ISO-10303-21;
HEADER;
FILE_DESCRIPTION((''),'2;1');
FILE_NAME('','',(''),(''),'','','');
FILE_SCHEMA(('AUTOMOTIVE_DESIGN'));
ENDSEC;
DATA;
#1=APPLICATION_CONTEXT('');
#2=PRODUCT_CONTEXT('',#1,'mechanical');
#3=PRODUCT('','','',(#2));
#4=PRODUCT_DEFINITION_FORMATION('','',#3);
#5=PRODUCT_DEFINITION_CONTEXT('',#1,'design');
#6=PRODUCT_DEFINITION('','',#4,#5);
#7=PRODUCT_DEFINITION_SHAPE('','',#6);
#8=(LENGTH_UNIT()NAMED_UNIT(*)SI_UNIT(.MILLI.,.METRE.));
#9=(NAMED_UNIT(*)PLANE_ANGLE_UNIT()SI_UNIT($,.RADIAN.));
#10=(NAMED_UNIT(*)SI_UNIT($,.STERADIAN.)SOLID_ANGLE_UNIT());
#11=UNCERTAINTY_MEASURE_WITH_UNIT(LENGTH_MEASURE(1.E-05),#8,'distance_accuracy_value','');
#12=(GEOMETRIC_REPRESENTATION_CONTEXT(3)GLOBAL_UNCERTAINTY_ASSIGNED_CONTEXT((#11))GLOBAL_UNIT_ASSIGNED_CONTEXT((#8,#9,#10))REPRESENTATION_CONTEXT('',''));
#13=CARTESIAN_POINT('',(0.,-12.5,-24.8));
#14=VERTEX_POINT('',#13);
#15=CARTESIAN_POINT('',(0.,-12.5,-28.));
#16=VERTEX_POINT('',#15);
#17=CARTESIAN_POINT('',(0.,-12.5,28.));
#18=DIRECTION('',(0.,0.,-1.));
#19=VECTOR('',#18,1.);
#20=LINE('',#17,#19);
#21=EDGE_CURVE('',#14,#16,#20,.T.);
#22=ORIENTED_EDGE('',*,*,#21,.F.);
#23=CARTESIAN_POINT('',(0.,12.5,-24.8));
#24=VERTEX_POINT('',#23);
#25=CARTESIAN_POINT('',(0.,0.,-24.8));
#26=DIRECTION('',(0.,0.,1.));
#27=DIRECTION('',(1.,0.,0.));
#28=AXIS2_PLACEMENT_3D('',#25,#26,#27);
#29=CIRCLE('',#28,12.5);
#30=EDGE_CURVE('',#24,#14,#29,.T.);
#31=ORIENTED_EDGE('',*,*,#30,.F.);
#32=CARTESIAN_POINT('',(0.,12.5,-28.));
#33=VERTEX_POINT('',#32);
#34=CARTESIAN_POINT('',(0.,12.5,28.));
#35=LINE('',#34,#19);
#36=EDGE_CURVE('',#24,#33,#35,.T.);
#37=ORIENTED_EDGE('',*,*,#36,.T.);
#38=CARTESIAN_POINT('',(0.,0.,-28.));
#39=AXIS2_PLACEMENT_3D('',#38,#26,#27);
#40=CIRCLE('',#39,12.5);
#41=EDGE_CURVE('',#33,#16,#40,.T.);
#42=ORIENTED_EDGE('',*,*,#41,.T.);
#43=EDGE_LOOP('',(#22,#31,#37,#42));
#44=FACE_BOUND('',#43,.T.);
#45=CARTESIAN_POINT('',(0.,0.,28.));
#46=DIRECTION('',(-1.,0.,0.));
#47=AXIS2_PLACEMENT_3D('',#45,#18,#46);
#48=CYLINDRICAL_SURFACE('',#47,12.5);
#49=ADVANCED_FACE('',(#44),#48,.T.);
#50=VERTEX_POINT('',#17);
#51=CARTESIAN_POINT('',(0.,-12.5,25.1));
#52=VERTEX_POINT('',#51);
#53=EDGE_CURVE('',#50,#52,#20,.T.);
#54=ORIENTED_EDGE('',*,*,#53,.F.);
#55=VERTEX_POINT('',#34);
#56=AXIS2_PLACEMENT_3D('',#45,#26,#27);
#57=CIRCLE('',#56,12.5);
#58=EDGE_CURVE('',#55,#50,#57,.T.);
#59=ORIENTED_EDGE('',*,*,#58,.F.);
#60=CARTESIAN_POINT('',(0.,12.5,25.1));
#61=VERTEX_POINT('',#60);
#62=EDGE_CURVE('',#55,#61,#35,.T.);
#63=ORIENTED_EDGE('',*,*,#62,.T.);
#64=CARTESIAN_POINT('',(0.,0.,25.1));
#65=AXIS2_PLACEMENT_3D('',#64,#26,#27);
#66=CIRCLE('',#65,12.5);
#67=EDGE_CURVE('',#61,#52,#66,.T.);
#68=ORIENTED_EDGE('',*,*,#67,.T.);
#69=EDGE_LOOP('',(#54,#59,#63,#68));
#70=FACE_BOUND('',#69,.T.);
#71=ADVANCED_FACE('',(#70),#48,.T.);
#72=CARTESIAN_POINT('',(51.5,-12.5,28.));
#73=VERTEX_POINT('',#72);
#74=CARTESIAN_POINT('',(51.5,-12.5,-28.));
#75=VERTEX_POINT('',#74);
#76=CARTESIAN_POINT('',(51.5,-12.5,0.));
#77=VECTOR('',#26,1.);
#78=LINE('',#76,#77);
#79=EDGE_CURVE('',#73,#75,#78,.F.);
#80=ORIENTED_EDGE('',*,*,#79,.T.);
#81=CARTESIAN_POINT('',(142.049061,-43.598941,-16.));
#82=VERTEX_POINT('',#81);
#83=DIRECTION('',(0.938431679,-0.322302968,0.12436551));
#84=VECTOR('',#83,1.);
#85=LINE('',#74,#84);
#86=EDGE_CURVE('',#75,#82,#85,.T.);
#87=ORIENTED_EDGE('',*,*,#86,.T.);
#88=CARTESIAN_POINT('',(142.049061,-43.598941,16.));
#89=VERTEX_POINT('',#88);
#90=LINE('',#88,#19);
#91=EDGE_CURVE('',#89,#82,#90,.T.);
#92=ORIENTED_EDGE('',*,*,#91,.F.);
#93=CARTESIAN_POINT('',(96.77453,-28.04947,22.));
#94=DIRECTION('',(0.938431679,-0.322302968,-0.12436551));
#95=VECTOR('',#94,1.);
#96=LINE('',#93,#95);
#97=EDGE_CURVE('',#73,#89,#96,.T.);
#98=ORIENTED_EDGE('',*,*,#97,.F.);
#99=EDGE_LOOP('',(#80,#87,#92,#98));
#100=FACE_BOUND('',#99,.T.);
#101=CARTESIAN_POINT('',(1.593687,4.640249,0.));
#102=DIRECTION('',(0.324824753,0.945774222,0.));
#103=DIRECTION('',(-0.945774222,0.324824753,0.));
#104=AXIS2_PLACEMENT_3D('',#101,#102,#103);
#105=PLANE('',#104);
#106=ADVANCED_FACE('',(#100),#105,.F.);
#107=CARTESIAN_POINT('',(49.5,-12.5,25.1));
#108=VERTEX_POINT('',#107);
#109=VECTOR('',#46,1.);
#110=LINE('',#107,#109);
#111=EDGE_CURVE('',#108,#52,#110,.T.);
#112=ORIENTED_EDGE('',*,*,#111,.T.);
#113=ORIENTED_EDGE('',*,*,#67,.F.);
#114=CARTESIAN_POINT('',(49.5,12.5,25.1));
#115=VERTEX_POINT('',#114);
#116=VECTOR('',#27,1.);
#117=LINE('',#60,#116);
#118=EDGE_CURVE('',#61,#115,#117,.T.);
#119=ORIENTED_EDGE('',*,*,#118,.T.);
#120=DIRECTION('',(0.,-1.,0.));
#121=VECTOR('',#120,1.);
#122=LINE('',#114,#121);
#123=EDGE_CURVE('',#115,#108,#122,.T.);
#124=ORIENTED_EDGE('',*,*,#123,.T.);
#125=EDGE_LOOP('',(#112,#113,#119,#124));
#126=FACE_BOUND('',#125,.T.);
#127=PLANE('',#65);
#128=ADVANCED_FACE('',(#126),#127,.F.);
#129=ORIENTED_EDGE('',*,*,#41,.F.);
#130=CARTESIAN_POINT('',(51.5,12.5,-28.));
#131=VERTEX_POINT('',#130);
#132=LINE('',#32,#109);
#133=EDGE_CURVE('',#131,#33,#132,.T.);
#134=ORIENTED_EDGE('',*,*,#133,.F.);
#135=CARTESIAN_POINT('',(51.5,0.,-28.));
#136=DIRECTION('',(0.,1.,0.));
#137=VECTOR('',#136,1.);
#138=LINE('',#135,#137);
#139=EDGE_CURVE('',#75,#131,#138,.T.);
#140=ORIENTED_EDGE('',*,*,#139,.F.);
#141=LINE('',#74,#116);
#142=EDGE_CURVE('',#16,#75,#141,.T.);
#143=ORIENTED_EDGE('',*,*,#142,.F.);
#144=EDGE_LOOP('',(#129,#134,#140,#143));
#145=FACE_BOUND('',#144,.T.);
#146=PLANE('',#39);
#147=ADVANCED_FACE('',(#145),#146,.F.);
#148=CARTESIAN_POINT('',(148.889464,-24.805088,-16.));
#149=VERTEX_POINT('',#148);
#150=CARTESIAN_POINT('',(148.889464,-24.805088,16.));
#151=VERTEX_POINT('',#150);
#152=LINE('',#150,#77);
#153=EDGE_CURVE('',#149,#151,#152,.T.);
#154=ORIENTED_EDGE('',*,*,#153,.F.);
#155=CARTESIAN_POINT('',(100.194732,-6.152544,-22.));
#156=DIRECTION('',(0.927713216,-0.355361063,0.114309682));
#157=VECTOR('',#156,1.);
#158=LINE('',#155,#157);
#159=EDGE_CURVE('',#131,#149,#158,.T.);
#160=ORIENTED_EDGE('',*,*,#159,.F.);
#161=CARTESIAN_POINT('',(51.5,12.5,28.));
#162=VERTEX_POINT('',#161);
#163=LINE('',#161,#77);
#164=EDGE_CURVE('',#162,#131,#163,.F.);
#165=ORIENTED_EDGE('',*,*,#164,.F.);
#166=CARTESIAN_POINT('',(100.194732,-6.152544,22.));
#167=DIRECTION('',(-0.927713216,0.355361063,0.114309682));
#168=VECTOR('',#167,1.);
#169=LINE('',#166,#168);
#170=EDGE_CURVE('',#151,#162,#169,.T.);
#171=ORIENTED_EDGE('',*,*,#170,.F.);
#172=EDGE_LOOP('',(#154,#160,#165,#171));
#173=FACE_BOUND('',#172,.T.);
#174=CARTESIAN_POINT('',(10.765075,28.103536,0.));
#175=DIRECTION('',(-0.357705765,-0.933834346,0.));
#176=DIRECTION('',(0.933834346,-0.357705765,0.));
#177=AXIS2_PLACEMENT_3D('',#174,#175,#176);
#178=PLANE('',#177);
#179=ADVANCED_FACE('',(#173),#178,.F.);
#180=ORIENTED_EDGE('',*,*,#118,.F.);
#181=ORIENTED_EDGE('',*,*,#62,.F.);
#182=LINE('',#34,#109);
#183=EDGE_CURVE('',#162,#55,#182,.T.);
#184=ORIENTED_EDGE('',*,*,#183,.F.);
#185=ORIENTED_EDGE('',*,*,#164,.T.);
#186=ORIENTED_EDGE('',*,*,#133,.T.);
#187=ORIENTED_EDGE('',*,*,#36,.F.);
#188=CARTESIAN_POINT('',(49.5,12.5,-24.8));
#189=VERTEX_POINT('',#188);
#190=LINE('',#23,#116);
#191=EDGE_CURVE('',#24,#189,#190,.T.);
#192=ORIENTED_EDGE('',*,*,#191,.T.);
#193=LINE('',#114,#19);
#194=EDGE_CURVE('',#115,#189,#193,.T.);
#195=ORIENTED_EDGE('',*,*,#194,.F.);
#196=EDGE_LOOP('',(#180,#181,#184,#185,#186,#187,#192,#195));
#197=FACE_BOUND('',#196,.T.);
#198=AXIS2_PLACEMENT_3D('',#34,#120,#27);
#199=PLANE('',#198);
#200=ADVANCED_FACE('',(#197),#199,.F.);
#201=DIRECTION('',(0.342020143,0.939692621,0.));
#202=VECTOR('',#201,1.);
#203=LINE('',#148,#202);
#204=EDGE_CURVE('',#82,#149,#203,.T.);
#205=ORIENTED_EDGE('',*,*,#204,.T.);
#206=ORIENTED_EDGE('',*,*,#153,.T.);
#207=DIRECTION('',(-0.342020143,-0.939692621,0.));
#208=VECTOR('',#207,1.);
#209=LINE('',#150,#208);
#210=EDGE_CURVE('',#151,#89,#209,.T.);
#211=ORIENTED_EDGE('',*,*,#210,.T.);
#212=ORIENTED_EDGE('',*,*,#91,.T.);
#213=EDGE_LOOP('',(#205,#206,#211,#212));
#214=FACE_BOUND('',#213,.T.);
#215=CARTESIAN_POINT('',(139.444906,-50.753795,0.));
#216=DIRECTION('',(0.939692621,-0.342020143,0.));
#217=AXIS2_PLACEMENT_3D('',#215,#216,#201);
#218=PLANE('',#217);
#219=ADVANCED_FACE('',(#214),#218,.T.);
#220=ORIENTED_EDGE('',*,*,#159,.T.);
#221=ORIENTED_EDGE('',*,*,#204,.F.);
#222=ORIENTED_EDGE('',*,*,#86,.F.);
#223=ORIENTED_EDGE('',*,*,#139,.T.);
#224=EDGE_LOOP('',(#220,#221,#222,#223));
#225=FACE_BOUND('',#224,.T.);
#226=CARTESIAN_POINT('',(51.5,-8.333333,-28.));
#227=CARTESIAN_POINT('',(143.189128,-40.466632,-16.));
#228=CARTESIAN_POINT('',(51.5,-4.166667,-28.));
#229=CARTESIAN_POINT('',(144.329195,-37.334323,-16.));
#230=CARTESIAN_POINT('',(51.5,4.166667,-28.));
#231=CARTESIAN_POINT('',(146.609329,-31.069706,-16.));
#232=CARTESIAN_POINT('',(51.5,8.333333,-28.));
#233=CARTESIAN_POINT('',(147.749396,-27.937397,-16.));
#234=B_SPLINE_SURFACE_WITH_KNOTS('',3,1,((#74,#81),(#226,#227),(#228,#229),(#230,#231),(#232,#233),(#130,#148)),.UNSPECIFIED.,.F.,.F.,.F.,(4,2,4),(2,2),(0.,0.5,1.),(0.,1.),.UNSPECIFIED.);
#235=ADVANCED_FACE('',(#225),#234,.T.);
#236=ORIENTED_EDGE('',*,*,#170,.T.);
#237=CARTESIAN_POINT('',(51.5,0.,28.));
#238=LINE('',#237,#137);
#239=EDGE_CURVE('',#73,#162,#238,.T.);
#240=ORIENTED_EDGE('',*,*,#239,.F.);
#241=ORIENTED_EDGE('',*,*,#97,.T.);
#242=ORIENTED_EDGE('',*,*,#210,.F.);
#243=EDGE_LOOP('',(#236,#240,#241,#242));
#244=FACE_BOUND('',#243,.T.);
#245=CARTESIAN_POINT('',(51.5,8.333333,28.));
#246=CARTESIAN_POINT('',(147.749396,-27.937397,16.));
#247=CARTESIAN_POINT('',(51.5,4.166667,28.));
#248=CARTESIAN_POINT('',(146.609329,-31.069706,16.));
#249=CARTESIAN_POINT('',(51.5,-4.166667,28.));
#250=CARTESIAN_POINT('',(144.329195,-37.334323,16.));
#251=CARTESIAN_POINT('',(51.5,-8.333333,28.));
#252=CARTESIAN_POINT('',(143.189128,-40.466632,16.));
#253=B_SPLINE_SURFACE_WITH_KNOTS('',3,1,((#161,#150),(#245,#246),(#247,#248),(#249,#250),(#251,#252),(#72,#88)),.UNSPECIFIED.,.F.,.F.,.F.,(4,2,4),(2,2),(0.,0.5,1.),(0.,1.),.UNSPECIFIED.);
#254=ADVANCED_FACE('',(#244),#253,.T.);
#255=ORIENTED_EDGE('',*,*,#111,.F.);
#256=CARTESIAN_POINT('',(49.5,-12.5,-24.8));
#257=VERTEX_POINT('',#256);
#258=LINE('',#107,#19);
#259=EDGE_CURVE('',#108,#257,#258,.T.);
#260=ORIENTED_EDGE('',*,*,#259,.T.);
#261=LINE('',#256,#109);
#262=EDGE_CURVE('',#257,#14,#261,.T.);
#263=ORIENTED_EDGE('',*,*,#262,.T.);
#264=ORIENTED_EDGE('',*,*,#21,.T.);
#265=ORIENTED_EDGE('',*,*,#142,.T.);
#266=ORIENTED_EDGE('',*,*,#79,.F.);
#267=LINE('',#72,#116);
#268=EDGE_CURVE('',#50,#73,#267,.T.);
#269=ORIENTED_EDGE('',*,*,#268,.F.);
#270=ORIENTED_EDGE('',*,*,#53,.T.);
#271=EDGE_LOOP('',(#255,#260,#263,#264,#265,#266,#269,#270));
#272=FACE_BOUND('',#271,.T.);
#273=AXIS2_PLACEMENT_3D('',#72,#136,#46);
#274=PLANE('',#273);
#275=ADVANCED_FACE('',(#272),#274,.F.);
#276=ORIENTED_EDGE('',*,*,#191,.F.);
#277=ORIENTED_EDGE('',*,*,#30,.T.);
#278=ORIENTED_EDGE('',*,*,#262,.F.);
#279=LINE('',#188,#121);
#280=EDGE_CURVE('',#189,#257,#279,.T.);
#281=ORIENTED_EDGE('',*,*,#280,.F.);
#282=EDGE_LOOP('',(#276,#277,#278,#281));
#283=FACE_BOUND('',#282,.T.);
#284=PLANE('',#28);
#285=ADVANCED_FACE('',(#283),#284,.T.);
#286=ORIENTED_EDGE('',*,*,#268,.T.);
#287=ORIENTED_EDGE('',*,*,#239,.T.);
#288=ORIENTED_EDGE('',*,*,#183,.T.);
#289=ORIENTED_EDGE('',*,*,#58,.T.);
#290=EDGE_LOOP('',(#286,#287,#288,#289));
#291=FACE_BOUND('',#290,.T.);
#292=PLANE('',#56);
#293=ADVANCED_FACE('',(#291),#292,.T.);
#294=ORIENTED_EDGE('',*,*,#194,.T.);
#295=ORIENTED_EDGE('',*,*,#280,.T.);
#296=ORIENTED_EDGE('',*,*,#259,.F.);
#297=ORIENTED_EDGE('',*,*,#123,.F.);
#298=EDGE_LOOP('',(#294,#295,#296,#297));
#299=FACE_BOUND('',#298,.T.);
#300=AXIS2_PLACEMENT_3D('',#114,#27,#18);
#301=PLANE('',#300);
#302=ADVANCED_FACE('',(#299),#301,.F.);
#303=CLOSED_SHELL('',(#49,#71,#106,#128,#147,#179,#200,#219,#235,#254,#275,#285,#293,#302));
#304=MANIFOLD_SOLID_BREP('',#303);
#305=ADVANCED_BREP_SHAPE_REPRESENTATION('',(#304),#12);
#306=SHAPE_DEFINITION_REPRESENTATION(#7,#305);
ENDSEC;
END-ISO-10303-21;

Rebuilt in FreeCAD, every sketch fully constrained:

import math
import FreeCAD as App
import Part
import Sketcher
from FreeCAD import Vector
Q = App.Units.Quantity


def add_polygon(sketch, points):
    """Adds a closed chain of lines whose ends are joined by coincident constraints."""
    first, n = sketch.GeometryCount, len(points)
    for a, b in zip(points, points[1:] + points[:1]):
        sketch.addGeometry(Part.LineSegment(App.Vector(*a, 0), App.Vector(*b, 0)), False)
    for i in range(n):
        sketch.addConstraint(Sketcher.Constraint("Coincident", first + i, 2, first + (i + 1) % n, 1))

doc = App.newDocument("Part")
body = doc.addObject("PartDesign::Body", "Body")

sketch1 = doc.addObject("Sketcher::SketchObject", "Sketch")
body.addObject(sketch1)
sketch1.AttachmentSupport = (doc.XY_Plane, [""])
sketch1.MapMode = "FlatFace"
sketch1.addGeometry([
    Part.LineSegment(Vector(52, 12, 0), Vector(0, 12, 0)),
    Part.ArcOfCircle(Part.Circle(Vector(0, 0, 0), Vector(0, 0, 1), 12), math.radians(90), math.radians(270)),
    Part.LineSegment(Vector(0, -12, 0), Vector(52, -12, 0)),
    Part.LineSegment(Vector(52, -12, 0), Vector(52, 12, 0)),
], False)
sketch1.addConstraint([
    Sketcher.Constraint("Tangent", 0, 2, 1, 1),
    Sketcher.Constraint("Tangent", 1, 2, 2, 1),
    Sketcher.Constraint("Coincident", 2, 2, 3, 1),
    Sketcher.Constraint("Coincident", 3, 2, 0, 1),
    Sketcher.Constraint("Horizontal", 0),
    Sketcher.Constraint("Horizontal", 2),
    Sketcher.Constraint("Vertical", 3),
    Sketcher.Constraint("Coincident", 1, 3, -1, 1),
    Sketcher.Constraint("Radius", 1, Q("12.5 mm")),
    Sketcher.Constraint("DistanceX", 0, 2, 0, 1, Q("51.5 mm")),
])
pad1 = doc.addObject("PartDesign::Pad", "Pad")
body.addObject(pad1)
pad1.Profile = sketch1
pad1.Length = 56
pad1.Midplane = True

sketch2 = doc.addObject("Sketcher::SketchObject", "Sketch001")
body.addObject(sketch2)
sketch2.AttachmentSupport = (doc.XY_Plane, [""])
sketch2.MapMode = "FlatFace"
sketch2.addGeometry([
    Part.LineSegment(Vector(50, 12, 0), Vector(0, 12, 0)),
    Part.ArcOfCircle(Part.Circle(Vector(0, 0, 0), Vector(0, 0, 1), 12), math.radians(90), math.radians(270)),
    Part.LineSegment(Vector(0, -12, 0), Vector(50, -12, 0)),
    Part.LineSegment(Vector(50, -12, 0), Vector(50, 12, 0)),
], False)
sketch2.addConstraint([
    Sketcher.Constraint("Tangent", 0, 2, 1, 1),
    Sketcher.Constraint("Tangent", 1, 2, 2, 1),
    Sketcher.Constraint("Coincident", 2, 2, 3, 1),
    Sketcher.Constraint("Coincident", 3, 2, 0, 1),
    Sketcher.Constraint("Horizontal", 0),
    Sketcher.Constraint("Horizontal", 2),
    Sketcher.Constraint("Vertical", 3),
    Sketcher.Constraint("Coincident", 1, 3, -1, 1),
    Sketcher.Constraint("Radius", 1, Q("12.5 mm")),
    Sketcher.Constraint("DistanceX", 0, 2, 0, 1, Q("49.5 mm")),
])
pocket1 = doc.addObject("PartDesign::Pocket", "Pocket")
body.addObject(pocket1)
pocket1.Profile = sketch2
pocket1.Type = "TwoLengths"
pocket1.Length = 25.1
pocket1.Length2 = 24.8
pocket1.Reversed = True

sketch3 = doc.addObject("Sketcher::SketchObject", "Sketch002")
body.addObject(sketch3)
sketch3.AttachmentSupport = (doc.YZ_Plane, [""])
sketch3.MapMode = "FlatFace"
sketch3.AttachmentOffset = App.Placement(Vector(0, 0, 51.5), App.Rotation())
add_polygon(sketch3, [(12, 28), (-12, 28), (-12, -28), (12, -28)])
sketch3.addConstraint([
    Sketcher.Constraint("Horizontal", 0),
    Sketcher.Constraint("Vertical", 1),
    Sketcher.Constraint("Horizontal", 2),
    Sketcher.Constraint("Vertical", 3),
    Sketcher.Constraint("Symmetric", 0, 2, 2, 2, -1, 1),
    Sketcher.Constraint("DistanceX", 0, 2, 0, 1, Q("25 mm")),
    Sketcher.Constraint("DistanceY", 1, 2, 1, 1, Q("56 mm")),
])

sketch4 = doc.addObject("Sketcher::SketchObject", "Sketch003")
body.addObject(sketch4)
sketch4.Placement = App.Placement(Vector(145.469262, -34.202014, 0), App.Rotation(Vector(0, 0, -1), Vector(0.342020143, 0.939692621, 0), Vector(0.939692621, -0.342020143, 0), "ZXY"))
add_polygon(sketch4, [(-16, 10), (-16, -10), (16, -10), (16, 10)])
sketch4.addConstraint([
    Sketcher.Constraint("Vertical", 0),
    Sketcher.Constraint("Horizontal", 1),
    Sketcher.Constraint("Vertical", 2),
    Sketcher.Constraint("Horizontal", 3),
    Sketcher.Constraint("Symmetric", 0, 2, 2, 2, -1, 1),
    Sketcher.Constraint("DistanceX", 1, 1, 1, 2, Q("32 mm")),
    Sketcher.Constraint("DistanceY", 0, 2, 0, 1, Q("20 mm")),
])

additiveloft = doc.addObject("PartDesign::AdditiveLoft", "AdditiveLoft")
body.addObject(additiveloft)
additiveloft.Profile = sketch3
additiveloft.Sections = [sketch4]

doc.recompute()
